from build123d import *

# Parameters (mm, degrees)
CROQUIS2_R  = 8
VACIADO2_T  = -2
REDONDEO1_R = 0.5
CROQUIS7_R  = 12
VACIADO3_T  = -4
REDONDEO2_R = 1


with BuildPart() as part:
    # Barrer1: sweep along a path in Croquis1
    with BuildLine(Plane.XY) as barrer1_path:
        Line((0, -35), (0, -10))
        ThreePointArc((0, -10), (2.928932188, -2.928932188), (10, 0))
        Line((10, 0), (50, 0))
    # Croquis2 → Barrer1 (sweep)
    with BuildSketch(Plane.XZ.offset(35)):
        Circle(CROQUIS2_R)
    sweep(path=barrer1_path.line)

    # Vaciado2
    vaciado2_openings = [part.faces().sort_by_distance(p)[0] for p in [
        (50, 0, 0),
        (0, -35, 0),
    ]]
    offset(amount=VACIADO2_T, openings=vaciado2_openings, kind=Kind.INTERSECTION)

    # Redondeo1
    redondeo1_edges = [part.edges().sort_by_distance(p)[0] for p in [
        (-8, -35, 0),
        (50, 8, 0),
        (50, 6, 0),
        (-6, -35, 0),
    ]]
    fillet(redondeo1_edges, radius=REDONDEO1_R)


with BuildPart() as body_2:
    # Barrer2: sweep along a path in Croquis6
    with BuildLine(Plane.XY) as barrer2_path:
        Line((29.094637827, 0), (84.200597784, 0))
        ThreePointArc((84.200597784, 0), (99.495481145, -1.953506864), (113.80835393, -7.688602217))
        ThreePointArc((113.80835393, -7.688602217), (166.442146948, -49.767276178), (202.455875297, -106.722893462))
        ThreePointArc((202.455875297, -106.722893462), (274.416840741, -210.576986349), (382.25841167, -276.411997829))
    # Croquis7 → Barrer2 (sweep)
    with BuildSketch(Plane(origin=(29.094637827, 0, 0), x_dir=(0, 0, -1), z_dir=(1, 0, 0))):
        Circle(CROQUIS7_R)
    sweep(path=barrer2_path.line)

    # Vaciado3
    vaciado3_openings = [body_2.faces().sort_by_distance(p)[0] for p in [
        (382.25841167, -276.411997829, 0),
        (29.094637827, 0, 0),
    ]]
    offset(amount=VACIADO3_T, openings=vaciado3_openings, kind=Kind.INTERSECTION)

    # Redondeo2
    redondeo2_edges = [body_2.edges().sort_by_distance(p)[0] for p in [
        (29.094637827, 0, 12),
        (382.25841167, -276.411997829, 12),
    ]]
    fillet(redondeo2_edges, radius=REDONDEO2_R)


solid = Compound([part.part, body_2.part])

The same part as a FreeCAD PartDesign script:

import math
import FreeCAD as App
import Part
import Sketcher
from FreeCAD import Vector


def edges_at(feature, points):
    """Names of the edges that pass closest to the given points."""
    edges = feature.Shape.Edges
    near = lambda p: min(range(len(edges)), key=lambda i: edges[i].distToShape(Part.Vertex(*p))[0])
    return sorted({f"Edge{near(p) + 1}" for p in points})


def faces_at(feature, points):
    """Names of the faces that lie closest to the given points."""
    faces = feature.Shape.Faces
    near = lambda p: min(range(len(faces)), key=lambda i: faces[i].distToShape(Part.Vertex(*p))[0])
    return sorted({f"Face{near(p) + 1}" for p in points})

doc = App.newDocument("Part")
body = doc.addObject("PartDesign::Body", "Body")

sketch1 = body.newObject("Sketcher::SketchObject", "Sketch")
sketch1.AttachmentSupport = (doc.getObject("XZ_Plane"), [""])
sketch1.MapMode = "FlatFace"
sketch1.AttachmentOffset = App.Placement(Vector(0, 0, 35), App.Rotation())
sketch1.addGeometry(Part.Circle(Vector(0, 0, 0), Vector(0, 0, 1), 8), False)
sketch1.addConstraint(Sketcher.Constraint("Coincident", 0, 3, -1, 1))
sketch1.addConstraint(Sketcher.Constraint("Diameter", 0, 16.0))

sketch2 = body.newObject("Sketcher::SketchObject", "Sketch001")
sketch2.AttachmentSupport = (doc.getObject("XY_Plane"), [""])
sketch2.MapMode = "FlatFace"
sketch2.addGeometry(Part.LineSegment(Vector(0, -35, 0), Vector(0, -10, 0)), False)
sketch2.addGeometry(Part.ArcOfCircle(Part.Circle(Vector(10, -10, 0), Vector(0, 0, 1), 10), math.radians(90), math.radians(180)), False)
sketch2.addGeometry(Part.LineSegment(Vector(10, 0, 0), Vector(50, 0, 0)), False)
sketch2.addConstraint(Sketcher.Constraint("Tangent", 0, 2, 1, 2))
sketch2.addConstraint(Sketcher.Constraint("Tangent", 1, 1, 2, 1))
sketch2.addConstraint(Sketcher.Constraint("Vertical", 0))
sketch2.addConstraint(Sketcher.Constraint("Horizontal", 2))
sketch2.addConstraint(Sketcher.Constraint("PointOnObject", 0, 1, -2))
sketch2.addConstraint(Sketcher.Constraint("PointOnObject", 1, 1, -1))
sketch2.addConstraint(Sketcher.Constraint("Radius", 1, 10.0))
sketch2.addConstraint(Sketcher.Constraint("DistanceX", 2, 1, 2, 2, 40.0))
sketch2.addConstraint(Sketcher.Constraint("DistanceY", 0, 1, 0, 2, 25.0))
doc.recompute()

additivepipe = body.newObject("PartDesign::AdditivePipe", "AdditivePipe")
additivepipe.Profile = sketch1
additivepipe.Spine = (sketch2, ["Edge1", "Edge2", "Edge3"])
doc.recompute()

thickness = body.newObject("PartDesign::Thickness", "Thickness")
thickness.Base = (additivepipe, faces_at(additivepipe, [(50, 0, 0), (0, -35, 0)]))
thickness.Value = 2
thickness.Reversed = True
thickness.Join = "Intersection"
doc.recompute()

fillet = body.newObject("PartDesign::Fillet", "Fillet")
fillet.Base = (thickness, edges_at(thickness, [
    (-8, -35, 0),
    (50, 8, 0),
    (50, 6, 0),
    (-6, -35, 0),
]))
fillet.Radius = 0.5
body2 = doc.addObject("PartDesign::Body", "Body001")

sketch3 = body2.newObject("Sketcher::SketchObject", "Sketch002")
sketch3.AttachmentSupport = (doc.getObject("YZ_Plane001"), [""])
sketch3.MapMode = "FlatFace"
sketch3.AttachmentOffset = App.Placement(Vector(0, 0, 29.094638), App.Rotation())
sketch3.addGeometry(Part.Circle(Vector(0, 0, 0), Vector(0, 0, 1), 12), False)
sketch3.addConstraint(Sketcher.Constraint("Coincident", 0, 3, -1, 1))
sketch3.addConstraint(Sketcher.Constraint("Diameter", 0, 24.0))

sketch4 = body2.newObject("Sketcher::SketchObject", "Sketch003")
sketch4.AttachmentSupport = (doc.getObject("XY_Plane001"), [""])
sketch4.MapMode = "FlatFace"
sketch4.addGeometry(Part.LineSegment(Vector(29.094638, 0, 0), Vector(84.200598, 0, 0)), False)
sketch4.addGeometry(Part.ArcOfCircle(Part.Circle(Vector(84.200598, -60.852012, 0), Vector(0, 0, 1), 60.852012), math.radians(60.8857), math.radians(90)), False)
sketch4.addGeometry(Part.ArcOfCircle(Part.Circle(Vector(14.757758, -185.542924, 0), Vector(0, 0, 1), 203.575982), math.radians(22.778986), math.radians(60.8857)), False)
sketch4.addGeometry(Part.ArcOfCircle(Part.Circle(Vector(484.013429, 11.511511, 0), Vector(0, 0, 1), 305.375229), math.radians(-157.221014), math.radians(-109.463912)), False)
sketch4.addConstraint(Sketcher.Constraint("Tangent", 0, 2, 1, 2))
sketch4.addConstraint(Sketcher.Constraint("Tangent", 1, 1, 2, 2))
sketch4.addConstraint(Sketcher.Constraint("Tangent", 2, 1, 3, 1))
sketch4.addConstraint(Sketcher.Constraint("Horizontal", 0))
sketch4.addConstraint(Sketcher.Constraint("PointOnObject", 0, 1, -1))
sketch4.addConstraint(Sketcher.Constraint("Radius", 1, 60.852012))
sketch4.addConstraint(Sketcher.Constraint("Radius", 2, 203.575982))
sketch4.addConstraint(Sketcher.Constraint("Radius", 3, 305.375229))
sketch4.addConstraint(Sketcher.Constraint("DistanceX", 0, 1, 0, 2, 55.10596))
sketch4.addConstraint(Sketcher.Constraint("DistanceX", -1, 1, 2, 3, 14.757758))
sketch4.addConstraint(Sketcher.Constraint("DistanceX", -1, 1, 3, 3, 484.013429))
sketch4.addConstraint(Sketcher.Constraint("DistanceY", -1, 1, 3, 3, 11.511511))
sketch4.addConstraint(Sketcher.Constraint("DistanceX", -1, 1, 3, 2, 382.258412))
doc.recompute()

additivepipe2 = body2.newObject("PartDesign::AdditivePipe", "AdditivePipe001")
additivepipe2.Profile = sketch3
additivepipe2.Spine = (sketch4, ["Edge1", "Edge2", "Edge3", "Edge4"])
doc.recompute()

thickness2 = body2.newObject("PartDesign::Thickness", "Thickness001")
thickness2.Base = (additivepipe2, faces_at(additivepipe2, [(382.258, -276.412, 0), (29.095, 0, 0)]))
thickness2.Value = 4
thickness2.Reversed = True
thickness2.Join = "Intersection"
doc.recompute()

fillet2 = body2.newObject("PartDesign::Fillet", "Fillet001")
fillet2.Base = (thickness2, edges_at(thickness2, [(29.095, 0, 12), (382.258, -276.412, 12)]))
fillet2.Radius = 1

doc.recompute()
